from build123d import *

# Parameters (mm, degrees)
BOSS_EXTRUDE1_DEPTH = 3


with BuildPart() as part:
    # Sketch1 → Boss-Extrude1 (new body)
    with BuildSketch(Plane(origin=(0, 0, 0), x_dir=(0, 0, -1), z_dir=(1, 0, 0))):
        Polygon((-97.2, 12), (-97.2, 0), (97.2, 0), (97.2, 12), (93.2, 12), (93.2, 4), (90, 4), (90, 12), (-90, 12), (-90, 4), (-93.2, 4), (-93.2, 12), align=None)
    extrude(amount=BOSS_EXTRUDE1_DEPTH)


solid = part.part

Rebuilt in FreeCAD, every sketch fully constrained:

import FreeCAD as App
import Part
import Sketcher
from FreeCAD import Vector

doc = App.newDocument("Part")
body = doc.addObject("PartDesign::Body", "Body")

# Sketch on YZ plane
sketch1 = body.newObject("Sketcher::SketchObject", "Sketch")
sketch1.AttachmentSupport = (doc.getObject("YZ_Plane"), [""])
sketch1.MapMode = "FlatFace"
sketch1.addGeometry([
    Part.LineSegment(Vector(12, 97.2, 0), Vector(0, 97.2, 0)),  # 0
    Part.LineSegment(Vector(0, 97.2, 0), Vector(0, -97.2, 0)),  # 1
    Part.LineSegment(Vector(0, -97.2, 0), Vector(12, -97.2, 0)),  # 2
    Part.LineSegment(Vector(12, -97.2, 0), Vector(12, -93.2, 0)),  # 3
    Part.LineSegment(Vector(12, -93.2, 0), Vector(4, -93.2, 0)),  # 4
    Part.LineSegment(Vector(4, -93.2, 0), Vector(4, -90, 0)),  # 5
    Part.LineSegment(Vector(4, -90, 0), Vector(12, -90, 0)),  # 6
    Part.LineSegment(Vector(12, -90, 0), Vector(12, 90, 0)),  # 7
    Part.LineSegment(Vector(12, 90, 0), Vector(4, 90, 0)),  # 8
    Part.LineSegment(Vector(4, 90, 0), Vector(4, 93.2, 0)),  # 9
    Part.LineSegment(Vector(4, 93.2, 0), Vector(12, 93.2, 0)),  # 10
    Part.LineSegment(Vector(12, 93.2, 0), Vector(12, 97.2, 0)),  # 11
], False)
sketch1.addConstraint([
    Sketcher.Constraint("Coincident", 0, 2, 1, 1),
    Sketcher.Constraint("Coincident", 1, 2, 2, 1),
    Sketcher.Constraint("Coincident", 2, 2, 3, 1),
    Sketcher.Constraint("Coincident", 3, 2, 4, 1),
    Sketcher.Constraint("Coincident", 4, 2, 5, 1),
    Sketcher.Constraint("Coincident", 5, 2, 6, 1),
    Sketcher.Constraint("Coincident", 6, 2, 7, 1),
    Sketcher.Constraint("Coincident", 7, 2, 8, 1),
    Sketcher.Constraint("Coincident", 8, 2, 9, 1),
    Sketcher.Constraint("Coincident", 9, 2, 10, 1),
    Sketcher.Constraint("Coincident", 10, 2, 11, 1),
    Sketcher.Constraint("Coincident", 11, 2, 0, 1),
    Sketcher.Constraint("Horizontal", 0),
    Sketcher.Constraint("Vertical", 1),
    Sketcher.Constraint("Horizontal", 2),
    Sketcher.Constraint("Vertical", 3),
    Sketcher.Constraint("Horizontal", 4),
    Sketcher.Constraint("Vertical", 5),
    Sketcher.Constraint("Horizontal", 6),
    Sketcher.Constraint("Vertical", 7),
    Sketcher.Constraint("Horizontal", 8),
    Sketcher.Constraint("Vertical", 9),
    Sketcher.Constraint("Horizontal", 10),
    Sketcher.Constraint("Vertical", 11),
    Sketcher.Constraint("Symmetric", 0, 2, 1, 2, -1, 1),
    Sketcher.Constraint("Symmetric", 5, 2, 8, 2, -1),
    Sketcher.Constraint("Symmetric", 3, 2, 10, 2, -1),
    Sketcher.Constraint("Vertical", 3, 2, 6, 2),
    Sketcher.Constraint("DistanceX", 0, 2, 0, 1, 12.0),
    Sketcher.Constraint("DistanceX", 4, 2, 4, 1, 8.0),
    Sketcher.Constraint("DistanceY", 3, 1, 3, 2, 4.0),
    Sketcher.Constraint("DistanceY", 7, 1, 7, 2, 180.0),
    Sketcher.Constraint("DistanceY", 1, 2, 1, 1, 194.4),
])
pad1 = body.newObject("PartDesign::Pad", "Pad")
pad1.Profile = sketch1
pad1.Length = 3

doc.recompute()
